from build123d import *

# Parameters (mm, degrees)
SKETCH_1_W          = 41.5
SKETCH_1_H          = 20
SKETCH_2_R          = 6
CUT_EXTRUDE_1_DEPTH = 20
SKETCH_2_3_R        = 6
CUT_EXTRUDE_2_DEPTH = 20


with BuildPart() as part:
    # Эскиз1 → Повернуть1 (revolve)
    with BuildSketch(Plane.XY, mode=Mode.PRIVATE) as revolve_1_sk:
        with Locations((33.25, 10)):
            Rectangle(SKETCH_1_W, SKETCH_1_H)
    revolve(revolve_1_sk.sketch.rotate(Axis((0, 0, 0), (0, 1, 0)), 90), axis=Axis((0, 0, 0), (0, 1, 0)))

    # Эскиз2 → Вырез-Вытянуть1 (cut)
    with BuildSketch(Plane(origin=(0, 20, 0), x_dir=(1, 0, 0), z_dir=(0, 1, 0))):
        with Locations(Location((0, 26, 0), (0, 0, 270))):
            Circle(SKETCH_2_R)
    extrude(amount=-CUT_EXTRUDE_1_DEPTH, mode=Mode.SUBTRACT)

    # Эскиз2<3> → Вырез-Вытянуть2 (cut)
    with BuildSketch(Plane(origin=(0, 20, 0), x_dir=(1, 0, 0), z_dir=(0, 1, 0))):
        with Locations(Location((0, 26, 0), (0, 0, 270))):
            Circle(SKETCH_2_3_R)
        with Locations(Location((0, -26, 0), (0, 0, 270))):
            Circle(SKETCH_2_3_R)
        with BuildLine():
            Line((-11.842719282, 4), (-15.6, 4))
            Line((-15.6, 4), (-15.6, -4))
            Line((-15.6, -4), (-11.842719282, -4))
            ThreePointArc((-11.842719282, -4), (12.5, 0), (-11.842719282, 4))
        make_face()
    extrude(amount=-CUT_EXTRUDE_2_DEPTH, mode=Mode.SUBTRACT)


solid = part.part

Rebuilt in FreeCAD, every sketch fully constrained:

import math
import FreeCAD as App
import Part
import Sketcher

V = App.Vector

doc = App.newDocument("Part")
body = doc.addObject("PartDesign::Body", "Body")

# Sketch on XY plane
sketch1 = body.newObject("Sketcher::SketchObject", "Sketch")
sketch1.AttachmentSupport = (doc.getObject("XY_Plane"), [""])
sketch1.MapMode = "FlatFace"
sketch1.addGeometry([
    Part.LineSegment(V(12.5, 20, 0), V(12.5, 0, 0)),
    Part.LineSegment(V(12.5, 0, 0), V(54, 0, 0)),
    Part.LineSegment(V(54, 0, 0), V(54, 20, 0)),
    Part.LineSegment(V(54, 20, 0), V(12.5, 20, 0)),
], False)
sketch1.addConstraint([
    Sketcher.Constraint("Coincident", 0, 2, 1, 1),
    Sketcher.Constraint("Coincident", 1, 2, 2, 1),
    Sketcher.Constraint("Coincident", 2, 2, 3, 1),
    Sketcher.Constraint("Coincident", 3, 2, 0, 1),
    Sketcher.Constraint("Vertical", 0),
    Sketcher.Constraint("Horizontal", 1),
    Sketcher.Constraint("Vertical", 2),
    Sketcher.Constraint("Horizontal", 3),
    Sketcher.Constraint("PointOnObject", 0, 2, -1),
    Sketcher.Constraint("DistanceY", 0, 2, 0, 1, 20.0),
    Sketcher.Constraint("DistanceX", 1, 1, 1, 2, 41.5),
    Sketcher.Constraint("DistanceX", -1, 1, 1, 2, 54.0),
])
revolution = body.newObject("PartDesign::Revolution", "Revolution")
revolution.Profile = sketch1
revolution.ReferenceAxis = (sketch1, ["V_Axis"])
revolution.Angle = 360

# Sketch on XZ plane
sketch2 = body.newObject("Sketcher::SketchObject", "Sketch001")
sketch2.AttachmentSupport = (doc.getObject("XZ_Plane"), [""])
sketch2.MapMode = "FlatFace"
sketch2.AttachmentOffset = App.Placement(V(0, 0, -20), App.Rotation())
sketch2.addGeometry(Part.Circle(V(0, -26, 0), V(0, 0, 1), 6), False)
sketch2.addConstraint([
    Sketcher.Constraint("PointOnObject", 0, 3, -2),
    Sketcher.Constraint("Diameter", 0, 12.0),
    Sketcher.Constraint("DistanceY", 0, 3, -1, 1, 26.0),
])
pocket1 = body.newObject("PartDesign::Pocket", "Pocket")
pocket1.Profile = sketch2
pocket1.Length = 20
pocket1.Reversed = True

# Sketch on XZ plane
sketch3 = body.newObject("Sketcher::SketchObject", "Sketch002")
sketch3.AttachmentSupport = (doc.getObject("XZ_Plane"), [""])
sketch3.MapMode = "FlatFace"
sketch3.AttachmentOffset = App.Placement(V(0, 0, -20), App.Rotation())
sketch3.addGeometry([
    Part.Circle(V(0, -26, 0), V(0, 0, 1), 6),  # 0
    Part.Circle(V(0, 26, 0), V(0, 0, 1), 6),  # 1
    Part.LineSegment(V(-11.842719, -4, 0), V(-15.6, -4, 0)),  # 2
    Part.LineSegment(V(-15.6, -4, 0), V(-15.6, 4, 0)),  # 3
    Part.LineSegment(V(-15.6, 4, 0), V(-11.842719, 4, 0)),  # 4
    Part.ArcOfCircle(Part.Circle(V(0, 0, 0), V(0, 0, 1), 12.5), math.radians(-161.337075), math.radians(161.337075)),  # 5
], False)
sketch3.addConstraint([
    Sketcher.Constraint("Coincident", 2, 2, 3, 1),
    Sketcher.Constraint("Coincident", 3, 2, 4, 1),
    Sketcher.Constraint("Coincident", 4, 2, 5, 2),
    Sketcher.Constraint("Coincident", 5, 1, 2, 1),
    Sketcher.Constraint("Horizontal", 2),
    Sketcher.Constraint("Vertical", 3),
    Sketcher.Constraint("Horizontal", 4),
    Sketcher.Constraint("Coincident", 5, 3, -1, 1),
    Sketcher.Constraint("Equal", 0, 1),
    Sketcher.Constraint("Symmetric", 0, 3, 1, 3, -1, 1),
    Sketcher.Constraint("PointOnObject", 0, 3, -2),
    Sketcher.Constraint("Vertical", 4, 2, 5, 1),
    Sketcher.Constraint("Diameter", 0, 12.0),
    Sketcher.Constraint("Radius", 5, 12.5),
    Sketcher.Constraint("DistanceY", 3, 1, 3, 2, 8.0),
    Sketcher.Constraint("DistanceY", 0, 3, -1, 1, 26.0),
    Sketcher.Constraint("DistanceX", 2, 2, -1, 1, 15.6),
])
pocket2 = body.newObject("PartDesign::Pocket", "Pocket001")
pocket2.Profile = sketch3
pocket2.Length = 20
pocket2.Reversed = True

doc.recompute()
